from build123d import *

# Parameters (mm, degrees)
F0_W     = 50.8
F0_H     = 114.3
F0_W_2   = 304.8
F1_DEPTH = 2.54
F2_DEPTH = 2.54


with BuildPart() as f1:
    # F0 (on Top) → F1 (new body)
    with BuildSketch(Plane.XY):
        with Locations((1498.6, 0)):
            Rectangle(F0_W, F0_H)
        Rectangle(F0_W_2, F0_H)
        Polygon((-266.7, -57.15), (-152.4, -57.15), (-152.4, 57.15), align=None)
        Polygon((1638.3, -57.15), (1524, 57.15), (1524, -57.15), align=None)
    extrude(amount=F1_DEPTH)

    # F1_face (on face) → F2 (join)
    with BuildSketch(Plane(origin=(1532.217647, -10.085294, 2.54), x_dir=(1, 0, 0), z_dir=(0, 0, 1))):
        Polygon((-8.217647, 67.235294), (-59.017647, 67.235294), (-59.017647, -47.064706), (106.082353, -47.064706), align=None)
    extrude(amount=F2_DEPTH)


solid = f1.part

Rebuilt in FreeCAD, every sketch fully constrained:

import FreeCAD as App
import Part
import Sketcher
Q = App.Units.Quantity


def add_polygon(sketch, points):
    """Adds a closed chain of lines whose ends are joined by coincident constraints."""
    first, n = sketch.GeometryCount, len(points)
    for a, b in zip(points, points[1:] + points[:1]):
        sketch.addGeometry(Part.LineSegment(App.Vector(*a, 0), App.Vector(*b, 0)), False)
    for i in range(n):
        sketch.addConstraint(Sketcher.Constraint("Coincident", first + i, 2, first + (i + 1) % n, 1))

doc = App.newDocument("Part")
body = doc.addObject("PartDesign::Body", "Body")
body.AllowCompound = True

# Sketch on XY plane
sketch1 = body.newObject("Sketcher::SketchObject", "Sketch")
sketch1.AttachmentSupport = (doc.getObject("XY_Plane"), [""])
sketch1.MapMode = "FlatFace"
add_polygon(sketch1, [(1473, 57), (1473, -57), (1638, -57), (1524, 57)])  # lines 0-3
add_polygon(sketch1, [(152, -57), (152, 57), (-152, 57), (-267, -57)])  # lines 4-7
sketch1.addConstraint([
    Sketcher.Constraint("Vertical", 0),
    Sketcher.Constraint("Horizontal", 1),
    Sketcher.Constraint("Horizontal", 3),
    Sketcher.Constraint("Vertical", 4),
    Sketcher.Constraint("Horizontal", 5),
    Sketcher.Constraint("Horizontal", 7),
    Sketcher.Constraint("Symmetric", 5, 2, 7, 2, -1, 1),
    Sketcher.Constraint("Perpendicular", 2, 6),
    Sketcher.Constraint("Horizontal", 3, 2, 4, 2),
    Sketcher.Constraint("Horizontal", 1, 2, 6, 2),
    Sketcher.Constraint("Equal", 2, 6),
    Sketcher.Constraint("DistanceX", 3, 2, 3, 1, Q("2 in")),
    Sketcher.Constraint("DistanceX", 5, 2, 5, 1, Q("12 in")),
    Sketcher.Constraint("DistanceX", 1, 1, 1, 2, Q("6.5 in")),
    Sketcher.Constraint("DistanceX", -1, 1, 0, 2, Q("58 in")),
])
pad1 = body.newObject("PartDesign::Pad", "Pad")
pad1.Profile = sketch1
pad1.Length = Q("0.1 in")

# Sketch on XY plane
sketch2 = body.newObject("Sketcher::SketchObject", "Sketch001")
sketch2.AttachmentSupport = (doc.getObject("XY_Plane"), [""])
sketch2.MapMode = "FlatFace"
sketch2.AttachmentOffset = App.Placement(App.Vector(0, 0, 0.1 * 25.4), App.Rotation())
add_polygon(sketch2, [(1524, 57), (1473, 57), (1473, -57), (1638, -57)])  # lines 0-3
sketch2.addConstraint([
    Sketcher.Constraint("Horizontal", 0),
    Sketcher.Constraint("Vertical", 1),
    Sketcher.Constraint("Horizontal", 2),
    Sketcher.Constraint("DistanceX", 0, 2, 0, 1, Q("2 in")),
    Sketcher.Constraint("DistanceX", 2, 1, 2, 2, Q("6.5 in")),
    Sketcher.Constraint("DistanceY", 1, 2, 1, 1, Q("4.5 in")),
    Sketcher.Constraint("DistanceX", -1, 1, 0, 2, Q("58 in")),
    Sketcher.Constraint("DistanceY", -1, 1, 0, 2, Q("2.25 in")),
])
pad2 = body.newObject("PartDesign::Pad", "Pad001")
pad2.Profile = sketch2
pad2.Length = Q("0.1 in")

doc.recompute()
